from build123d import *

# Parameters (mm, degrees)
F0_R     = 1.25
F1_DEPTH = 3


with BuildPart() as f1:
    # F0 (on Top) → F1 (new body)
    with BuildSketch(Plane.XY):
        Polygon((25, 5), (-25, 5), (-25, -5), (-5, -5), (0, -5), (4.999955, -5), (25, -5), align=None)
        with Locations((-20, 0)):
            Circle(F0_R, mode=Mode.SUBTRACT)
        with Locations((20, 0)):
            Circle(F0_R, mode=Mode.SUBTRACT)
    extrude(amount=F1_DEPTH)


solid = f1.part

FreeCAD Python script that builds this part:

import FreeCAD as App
import Part
import Sketcher


def add_polygon(sketch, points):
    """Adds a closed chain of lines whose ends are joined by coincident constraints."""
    first, n = sketch.GeometryCount, len(points)
    for a, b in zip(points, points[1:] + points[:1]):
        sketch.addGeometry(Part.LineSegment(App.Vector(*a, 0), App.Vector(*b, 0)), False)
    for i in range(n):
        sketch.addConstraint(Sketcher.Constraint("Coincident", first + i, 2, first + (i + 1) % n, 1))

doc = App.newDocument("Part")
params = doc.addObject("Spreadsheet::Sheet", "Params")
for row, (alias, value) in enumerate([
    ("sketch1_diameter", "2.5 mm"),
    ("sketch1_width", "50 mm"),
    ("sketch1_height", "10 mm"),
    ("pad1_length", "3 mm"),
], start=1):
    params.set(f"A{row}", alias)
    params.set(f"B{row}", "=" + value)
    params.setAlias(f"B{row}", alias)

body = doc.addObject("PartDesign::Body", "Body")

# Sketch on XY plane
sketch1 = body.newObject("Sketcher::SketchObject", "Sketch")
sketch1.AttachmentSupport = (doc.getObject("XY_Plane"), [""])
sketch1.MapMode = "FlatFace"
add_polygon(sketch1, [(25, 5), (-25, 5), (-25, -5), (25, -5)])  # lines 0-3
sketch1.addGeometry(Part.Circle(App.Vector(-20, 0, 0), App.Vector(0, 0, 1), 1.25), False)  # 4
sketch1.addGeometry(Part.Circle(App.Vector(20, 0, 0), App.Vector(0, 0, 1), 1.25), False)  # 5
sketch1.addConstraint([
    Sketcher.Constraint("Horizontal", 0),
    Sketcher.Constraint("Vertical", 1),
    Sketcher.Constraint("Horizontal", 2),
    Sketcher.Constraint("Vertical", 3),
    Sketcher.Constraint("Equal", 4, 5),
    Sketcher.Constraint("Symmetric", 4, 3, 5, 3, -1, 1),
    Sketcher.Constraint("Symmetric", 0, 2, 2, 2, -1, 1),
    Sketcher.Constraint("PointOnObject", 4, 3, -1),
    Sketcher.Constraint("Diameter", 4, 2.5),
    Sketcher.Constraint("DistanceX", 0, 2, 0, 1, 50.0),
    Sketcher.Constraint("DistanceY", 1, 2, 1, 1, 10.0),
    Sketcher.Constraint("DistanceX", 4, 3, -1, 1, 20.0),
])
sketch1.setExpression("Constraints[12]", "Params.sketch1_diameter")
sketch1.setExpression("Constraints[13]", "Params.sketch1_width")
sketch1.setExpression("Constraints[14]", "Params.sketch1_height")
pad1 = body.newObject("PartDesign::Pad", "Pad")
pad1.Profile = sketch1
pad1.setExpression("Length", "Params.pad1_length")

doc.recompute()
